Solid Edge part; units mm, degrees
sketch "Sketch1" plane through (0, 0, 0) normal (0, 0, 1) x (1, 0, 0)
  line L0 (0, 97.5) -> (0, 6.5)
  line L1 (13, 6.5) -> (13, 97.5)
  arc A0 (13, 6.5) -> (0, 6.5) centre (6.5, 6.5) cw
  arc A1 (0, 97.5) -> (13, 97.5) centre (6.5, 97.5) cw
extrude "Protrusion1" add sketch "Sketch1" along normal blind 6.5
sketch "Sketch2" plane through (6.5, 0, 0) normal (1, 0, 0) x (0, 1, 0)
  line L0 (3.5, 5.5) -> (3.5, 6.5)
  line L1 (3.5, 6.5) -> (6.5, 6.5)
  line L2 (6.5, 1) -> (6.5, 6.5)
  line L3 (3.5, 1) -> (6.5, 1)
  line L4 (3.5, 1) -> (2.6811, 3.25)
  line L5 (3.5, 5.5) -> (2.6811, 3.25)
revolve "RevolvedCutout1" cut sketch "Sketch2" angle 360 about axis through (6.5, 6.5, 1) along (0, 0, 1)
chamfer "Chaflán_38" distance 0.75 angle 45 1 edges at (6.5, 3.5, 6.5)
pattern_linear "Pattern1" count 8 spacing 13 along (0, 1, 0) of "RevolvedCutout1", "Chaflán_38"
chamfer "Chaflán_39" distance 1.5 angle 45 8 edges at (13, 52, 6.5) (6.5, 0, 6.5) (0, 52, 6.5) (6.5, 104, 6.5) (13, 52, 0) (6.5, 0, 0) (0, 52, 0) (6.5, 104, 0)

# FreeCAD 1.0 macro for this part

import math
import FreeCAD as App
import Part
import Sketcher
from FreeCAD import Vector
Q = App.Units.Quantity


def edges_at(feature, points):
    """Names of the edges that pass closest to the given points."""
    edges = feature.Shape.Edges
    near = lambda p: min(range(len(edges)), key=lambda i: edges[i].distToShape(Part.Vertex(*p))[0])
    return sorted({f"Edge{near(p) + 1}" for p in points})

doc = App.newDocument("Part")
params = doc.addObject("Spreadsheet::Sheet", "Params")
for row, (alias, value) in enumerate([
    ("sketch1_radius", "6.5 mm"),
    ("sketch1_height", "91 mm"),
    ("pad1_length", "6.5 mm"),
    ("sketch2_width", "3 mm"),
    ("sketch2_height", "1 mm"),
    ("sketch2_height2", "5.5 mm"),
    ("groove_angle", "360 deg"),
    ("chamfer_size", "0.75 mm"),
    ("linearpattern_pitch", "13 mm"),
    ("chamfer2_size", "1.5 mm"),
], start=1):
    params.set(f"A{row}", alias)
    params.set(f"B{row}", "=" + value)
    params.setAlias(f"B{row}", alias)

body = doc.addObject("PartDesign::Body", "Body")

# Sketch on XY plane
sketch1 = body.newObject("Sketcher::SketchObject", "Sketch")
sketch1.AttachmentSupport = (doc.getObject("XY_Plane"), [""])
sketch1.MapMode = "FlatFace"
sketch1.addGeometry(Part.ArcOfCircle(Part.Circle(Vector(6, 98, 0), Vector(0, 0, 1), 6), math.radians(0), math.radians(180)), False)
sketch1.addGeometry(Part.LineSegment(Vector(0, 98, 0), Vector(0, 6, 0)), False)
sketch1.addGeometry(Part.ArcOfCircle(Part.Circle(Vector(6, 6, 0), Vector(0, 0, 1), 6), math.radians(180), math.radians(360)), False)
sketch1.addGeometry(Part.LineSegment(Vector(13, 6, 0), Vector(13, 98, 0)), False)
sketch1.addConstraint(Sketcher.Constraint("Tangent", 0, 2, 1, 1))
sketch1.addConstraint(Sketcher.Constraint("Tangent", 1, 2, 2, 1))
sketch1.addConstraint(Sketcher.Constraint("Tangent", 2, 2, 3, 1))
sketch1.addConstraint(Sketcher.Constraint("Tangent", 3, 2, 0, 1))
sketch1.addConstraint(Sketcher.Constraint("Vertical", 1))
sketch1.addConstraint(Sketcher.Constraint("Vertical", 3))
sketch1.addConstraint(Sketcher.Constraint("PointOnObject", 0, 2, -2))
sketch1.addConstraint(Sketcher.Constraint("Radius", 0, Q("6.5 mm")))
sketch1.addConstraint(Sketcher.Constraint("DistanceY", 1, 2, 1, 1, Q("91 mm")))
sketch1.addConstraint(Sketcher.Constraint("DistanceY", -1, 1, 0, 3, Q("97.5 mm")))
sketch1.setExpression("Constraints[7]", "Params.sketch1_radius")
sketch1.setExpression("Constraints[8]", "Params.sketch1_height")
pad1 = body.newObject("PartDesign::Pad", "Pad")
pad1.Profile = sketch1
pad1.setExpression("Length", "Params.pad1_length")

# Sketch on YZ plane
sketch2 = body.newObject("Sketcher::SketchObject", "Sketch001")
sketch2.AttachmentSupport = (doc.getObject("YZ_Plane"), [""])
sketch2.MapMode = "FlatFace"
sketch2.AttachmentOffset = App.Placement(Vector(0, 0, 6.5), App.Rotation())
sketch2.addGeometry(Part.LineSegment(Vector(3.5, 6.5, 0), Vector(3.5, 5.5, 0)), False)
sketch2.addGeometry(Part.LineSegment(Vector(3.5, 5.5, 0), Vector(2.7, 3.2, 0)), False)
sketch2.addGeometry(Part.LineSegment(Vector(2.7, 3.2, 0), Vector(3.5, 1, 0)), False)
sketch2.addGeometry(Part.LineSegment(Vector(3.5, 1, 0), Vector(6.5, 1, 0)), False)
sketch2.addGeometry(Part.LineSegment(Vector(6.5, 1, 0), Vector(6.5, 6.5, 0)), False)
sketch2.addGeometry(Part.LineSegment(Vector(6.5, 6.5, 0), Vector(3.5, 6.5, 0)), False)
sketch2.addGeometry(Part.LineSegment(Vector(6.5, 1, 0), Vector(6.5, 6.5, 0)), True)  # axis
sketch2.addConstraint(Sketcher.Constraint("Coincident", 0, 2, 1, 1))
sketch2.addConstraint(Sketcher.Constraint("Coincident", 1, 2, 2, 1))
sketch2.addConstraint(Sketcher.Constraint("Coincident", 2, 2, 3, 1))
sketch2.addConstraint(Sketcher.Constraint("Coincident", 3, 2, 4, 1))
sketch2.addConstraint(Sketcher.Constraint("Coincident", 4, 2, 5, 1))
sketch2.addConstraint(Sketcher.Constraint("Coincident", 5, 2, 0, 1))
sketch2.addConstraint(Sketcher.Constraint("Vertical", 0))
sketch2.addConstraint(Sketcher.Constraint("Horizontal", 3))
sketch2.addConstraint(Sketcher.Constraint("Vertical", 4))
sketch2.addConstraint(Sketcher.Constraint("Horizontal", 5))
sketch2.addConstraint(Sketcher.Constraint("Vertical", 6))
sketch2.addConstraint(Sketcher.Constraint("Coincident", 6, 1, 3, 2))
sketch2.addConstraint(Sketcher.Constraint("Horizontal", 5, 2, 6, 2))
sketch2.addConstraint(Sketcher.Constraint("Vertical", 0, 2, 2, 2))
sketch2.addConstraint(Sketcher.Constraint("Equal", 1, 2))
sketch2.addConstraint(Sketcher.Constraint("DistanceX", 3, 1, 3, 2, Q("3 mm")))
sketch2.addConstraint(Sketcher.Constraint("DistanceY", 0, 2, 0, 1, Q("1 mm")))
sketch2.addConstraint(Sketcher.Constraint("Angle", 1, Q("-109.9993 deg")))
sketch2.addConstraint(Sketcher.Constraint("DistanceY", 4, 1, 4, 2, Q("5.5 mm")))
sketch2.addConstraint(Sketcher.Constraint("DistanceY", -1, 1, 2, 2, Q("1 mm")))
sketch2.addConstraint(Sketcher.Constraint("DistanceX", -1, 1, 0, 2, Q("3.5 mm")))
sketch2.setExpression("Constraints[15]", "Params.sketch2_width")
sketch2.setExpression("Constraints[16]", "Params.sketch2_height")
sketch2.setExpression("Constraints[18]", "Params.sketch2_height2")
groove = body.newObject("PartDesign::Groove", "Groove")
groove.Profile = sketch2
groove.ReferenceAxis = (sketch2, ["Axis0"])
groove.setExpression("Angle", "Params.groove_angle")
doc.recompute()

chamfer = body.newObject("PartDesign::Chamfer", "Chamfer")
chamfer.Base = (groove, edges_at(groove, [(6.5, 3.5, 6.5)]))
chamfer.setExpression("Size", "Params.chamfer_size")
doc.recompute()

linearpattern = body.newObject("PartDesign::LinearPattern", "LinearPattern")
linearpattern.Originals = [groove, chamfer]
linearpattern.Direction = (doc.getObject("Y_Axis"), [""])
linearpattern.Mode = "offset"
linearpattern.setExpression("Offset", "Params.linearpattern_pitch")
linearpattern.Occurrences = 8
body.Tip = linearpattern
doc.recompute()

chamfer2 = body.newObject("PartDesign::Chamfer", "Chamfer001")
chamfer2.Base = (linearpattern, edges_at(linearpattern, [
    (13, 52, 6.5),
    (6.5, 0, 6.5),
    (0, 52, 6.5),
    (6.5, 104, 6.5),
    (13, 52, 0),
    (6.5, 0, 0),
    (0, 52, 0),
    (6.5, 104, 0),
]))
chamfer2.setExpression("Size", "Params.chamfer2_size")

doc.recompute()
